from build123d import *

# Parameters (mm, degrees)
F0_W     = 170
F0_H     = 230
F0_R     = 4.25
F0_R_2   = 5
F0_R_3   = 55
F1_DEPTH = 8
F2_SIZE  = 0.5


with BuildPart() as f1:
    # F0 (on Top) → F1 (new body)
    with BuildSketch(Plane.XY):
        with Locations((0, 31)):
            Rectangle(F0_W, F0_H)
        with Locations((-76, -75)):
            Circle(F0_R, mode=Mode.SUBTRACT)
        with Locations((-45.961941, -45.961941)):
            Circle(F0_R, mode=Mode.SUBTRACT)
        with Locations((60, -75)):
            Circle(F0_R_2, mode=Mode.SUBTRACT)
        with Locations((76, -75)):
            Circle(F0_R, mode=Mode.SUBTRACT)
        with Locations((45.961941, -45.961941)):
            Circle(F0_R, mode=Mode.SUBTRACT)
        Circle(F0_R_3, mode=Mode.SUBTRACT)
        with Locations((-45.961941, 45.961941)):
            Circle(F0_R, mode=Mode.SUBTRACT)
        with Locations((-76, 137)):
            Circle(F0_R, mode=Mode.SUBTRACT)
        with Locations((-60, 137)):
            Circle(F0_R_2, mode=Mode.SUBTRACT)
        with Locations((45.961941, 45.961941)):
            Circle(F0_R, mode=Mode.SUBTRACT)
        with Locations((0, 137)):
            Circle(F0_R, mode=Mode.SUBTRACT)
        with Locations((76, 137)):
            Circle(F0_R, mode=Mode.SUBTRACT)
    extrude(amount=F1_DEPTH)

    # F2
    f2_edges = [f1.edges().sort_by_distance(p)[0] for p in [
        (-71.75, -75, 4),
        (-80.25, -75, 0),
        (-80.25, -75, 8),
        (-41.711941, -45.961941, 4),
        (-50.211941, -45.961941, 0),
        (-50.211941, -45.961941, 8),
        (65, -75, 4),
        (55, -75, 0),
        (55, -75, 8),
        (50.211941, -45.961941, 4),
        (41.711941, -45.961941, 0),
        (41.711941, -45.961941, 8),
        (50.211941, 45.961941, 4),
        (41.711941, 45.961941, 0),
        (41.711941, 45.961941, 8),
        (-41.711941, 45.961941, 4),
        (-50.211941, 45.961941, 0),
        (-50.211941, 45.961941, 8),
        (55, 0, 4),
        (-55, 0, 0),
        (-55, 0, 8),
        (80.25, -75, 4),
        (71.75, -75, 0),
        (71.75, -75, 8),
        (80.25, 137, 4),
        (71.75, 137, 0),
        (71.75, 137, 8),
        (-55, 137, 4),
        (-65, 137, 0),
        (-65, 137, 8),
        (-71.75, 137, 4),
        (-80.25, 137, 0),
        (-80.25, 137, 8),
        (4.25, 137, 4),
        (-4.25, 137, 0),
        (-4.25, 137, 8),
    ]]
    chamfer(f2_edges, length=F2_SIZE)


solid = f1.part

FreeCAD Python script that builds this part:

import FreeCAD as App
import Part
import Sketcher
from FreeCAD import Vector
Q = App.Units.Quantity


def edges_at(feature, points):
    """Names of the edges that pass closest to the given points."""
    edges = feature.Shape.Edges
    near = lambda p: min(range(len(edges)), key=lambda i: edges[i].distToShape(Part.Vertex(*p))[0])
    return sorted({f"Edge{near(p) + 1}" for p in points})

doc = App.newDocument("Part")
body = doc.addObject("PartDesign::Body", "Body")

sketch1 = doc.addObject("Sketcher::SketchObject", "Sketch")
body.addObject(sketch1)
sketch1.AttachmentSupport = (doc.XY_Plane, [""])
sketch1.MapMode = "FlatFace"
sketch1.addGeometry([
    Part.LineSegment(Vector(-85, 146, 0), Vector(-85, -84, 0)),
    Part.LineSegment(Vector(-85, -84, 0), Vector(85, -84, 0)),
    Part.LineSegment(Vector(85, -84, 0), Vector(85, 146, 0)),
    Part.LineSegment(Vector(85, 146, 0), Vector(-85, 146, 0)),
    Part.Circle(Vector(-76, -75, 0), Vector(0, 0, 1), 4.25),
    Part.Circle(Vector(-45.961941, -45.961941, 0), Vector(0, 0, 1), 4.25),
    Part.Circle(Vector(60, -75, 0), Vector(0, 0, 1), 5),
    Part.Circle(Vector(76, -75, 0), Vector(0, 0, 1), 4.25),
    Part.Circle(Vector(45.961941, -45.961941, 0), Vector(0, 0, 1), 4.25),
    Part.Circle(Vector(0, 0, 0), Vector(0, 0, 1), 55),
    Part.Circle(Vector(-45.961941, 45.961941, 0), Vector(0, 0, 1), 4.25),
    Part.Circle(Vector(-76, 137, 0), Vector(0, 0, 1), 4.25),
    Part.Circle(Vector(-60, 137, 0), Vector(0, 0, 1), 5),
    Part.Circle(Vector(45.961941, 45.961941, 0), Vector(0, 0, 1), 4.25),
    Part.Circle(Vector(0, 137, 0), Vector(0, 0, 1), 4.25),
    Part.Circle(Vector(76, 137, 0), Vector(0, 0, 1), 4.25),
], False)
sketch1.addConstraint([
    Sketcher.Constraint("Coincident", 0, 2, 1, 1),
    Sketcher.Constraint("Coincident", 1, 2, 2, 1),
    Sketcher.Constraint("Coincident", 2, 2, 3, 1),
    Sketcher.Constraint("Coincident", 3, 2, 0, 1),
    Sketcher.Constraint("Vertical", 0),
    Sketcher.Constraint("Horizontal", 1),
    Sketcher.Constraint("Vertical", 2),
    Sketcher.Constraint("Horizontal", 3),
    Sketcher.Constraint("Coincident", 9, 3, -1, 1),
    Sketcher.Constraint("Equal", 4, 5),
    Sketcher.Constraint("Equal", 5, 7),
    Sketcher.Constraint("Equal", 7, 8),
    Sketcher.Constraint("Equal", 8, 10),
    Sketcher.Constraint("Equal", 10, 11),
    Sketcher.Constraint("Equal", 6, 12),
    Sketcher.Constraint("Equal", 11, 13),
    Sketcher.Constraint("Equal", 13, 14),
    Sketcher.Constraint("Equal", 14, 15),
    Sketcher.Constraint("Symmetric", 8, 3, 10, 3, -1, 1),
    Sketcher.Constraint("Symmetric", 5, 3, 13, 3, -1, 1),
    Sketcher.Constraint("Symmetric", 4, 3, 7, 3, -2),
    Sketcher.Constraint("Symmetric", 5, 3, 8, 3, -2),
    Sketcher.Constraint("Symmetric", 11, 3, 15, 3, -2),
    Sketcher.Constraint("PointOnObject", 14, 3, -2),
    Sketcher.Constraint("Horizontal", 4, 3, 6, 3),
    Sketcher.Constraint("Horizontal", 11, 3, 12, 3),
    Sketcher.Constraint("Horizontal", 12, 3, 14, 3),
    Sketcher.Constraint("Vertical", 4, 3, 11, 3),
    Sketcher.Constraint("Diameter", 6, Q("10 mm")),
    Sketcher.Constraint("Diameter", 9, Q("110 mm")),
    Sketcher.Constraint("Diameter", 4, Q("8.5 mm")),
    Sketcher.Constraint("DistanceX", 1, 1, 1, 2, Q("170 mm")),
    Sketcher.Constraint("DistanceY", 0, 2, 0, 1, Q("230 mm")),
    Sketcher.Constraint("DistanceX", 4, 3, -1, 1, Q("76 mm")),
    Sketcher.Constraint("DistanceY", 4, 3, -1, 1, Q("75 mm")),
    Sketcher.Constraint("DistanceX", -1, 1, 6, 3, Q("60 mm")),
    Sketcher.Constraint("DistanceY", -1, 1, 11, 3, Q("137 mm")),
    Sketcher.Constraint("DistanceX", 12, 3, -1, 1, Q("60 mm")),
    Sketcher.Constraint("DistanceX", 0, 2, -1, 1, Q("85 mm")),
    Sketcher.Constraint("DistanceY", 0, 2, -1, 1, Q("84 mm")),
    Sketcher.Constraint("DistanceX", 5, 3, -1, 1, Q("45.961941 mm")),
    Sketcher.Constraint("DistanceY", 5, 3, -1, 1, Q("45.961941 mm")),
])
pad1 = doc.addObject("PartDesign::Pad", "Pad")
body.addObject(pad1)
pad1.Profile = sketch1
pad1.Length = 8
doc.recompute()

chamfer = doc.addObject("PartDesign::Chamfer", "Chamfer")
body.addObject(chamfer)
chamfer.Base = (pad1, edges_at(pad1, [
    (-71.75, -75, 4),
    (-80.25, -75, 0),
    (-80.25, -75, 8),
    (-41.712, -45.962, 4),
    (-50.212, -45.962, 0),
    (-50.212, -45.962, 8),
    (65, -75, 4),
    (55, -75, 0),
    (55, -75, 8),
    (50.212, -45.962, 4),
    (41.712, -45.962, 0),
    (41.712, -45.962, 8),
    (50.212, 45.962, 4),
    (41.712, 45.962, 0),
    (41.712, 45.962, 8),
    (-41.712, 45.962, 4),
    (-50.212, 45.962, 0),
    (-50.212, 45.962, 8),
    (55, 0, 4),
    (-55, 0, 0),
    (-55, 0, 8),
    (80.25, -75, 4),
    (71.75, -75, 0),
    (71.75, -75, 8),
    (80.25, 137, 4),
    (71.75, 137, 0),
    (71.75, 137, 8),
    (-55, 137, 4),
    (-65, 137, 0),
    (-65, 137, 8),
    (-71.75, 137, 4),
    (-80.25, 137, 0),
    (-80.25, 137, 8),
    (4.25, 137, 4),
    (-4.25, 137, 0),
    (-4.25, 137, 8),
]))
chamfer.Size = 0.5

doc.recompute()
